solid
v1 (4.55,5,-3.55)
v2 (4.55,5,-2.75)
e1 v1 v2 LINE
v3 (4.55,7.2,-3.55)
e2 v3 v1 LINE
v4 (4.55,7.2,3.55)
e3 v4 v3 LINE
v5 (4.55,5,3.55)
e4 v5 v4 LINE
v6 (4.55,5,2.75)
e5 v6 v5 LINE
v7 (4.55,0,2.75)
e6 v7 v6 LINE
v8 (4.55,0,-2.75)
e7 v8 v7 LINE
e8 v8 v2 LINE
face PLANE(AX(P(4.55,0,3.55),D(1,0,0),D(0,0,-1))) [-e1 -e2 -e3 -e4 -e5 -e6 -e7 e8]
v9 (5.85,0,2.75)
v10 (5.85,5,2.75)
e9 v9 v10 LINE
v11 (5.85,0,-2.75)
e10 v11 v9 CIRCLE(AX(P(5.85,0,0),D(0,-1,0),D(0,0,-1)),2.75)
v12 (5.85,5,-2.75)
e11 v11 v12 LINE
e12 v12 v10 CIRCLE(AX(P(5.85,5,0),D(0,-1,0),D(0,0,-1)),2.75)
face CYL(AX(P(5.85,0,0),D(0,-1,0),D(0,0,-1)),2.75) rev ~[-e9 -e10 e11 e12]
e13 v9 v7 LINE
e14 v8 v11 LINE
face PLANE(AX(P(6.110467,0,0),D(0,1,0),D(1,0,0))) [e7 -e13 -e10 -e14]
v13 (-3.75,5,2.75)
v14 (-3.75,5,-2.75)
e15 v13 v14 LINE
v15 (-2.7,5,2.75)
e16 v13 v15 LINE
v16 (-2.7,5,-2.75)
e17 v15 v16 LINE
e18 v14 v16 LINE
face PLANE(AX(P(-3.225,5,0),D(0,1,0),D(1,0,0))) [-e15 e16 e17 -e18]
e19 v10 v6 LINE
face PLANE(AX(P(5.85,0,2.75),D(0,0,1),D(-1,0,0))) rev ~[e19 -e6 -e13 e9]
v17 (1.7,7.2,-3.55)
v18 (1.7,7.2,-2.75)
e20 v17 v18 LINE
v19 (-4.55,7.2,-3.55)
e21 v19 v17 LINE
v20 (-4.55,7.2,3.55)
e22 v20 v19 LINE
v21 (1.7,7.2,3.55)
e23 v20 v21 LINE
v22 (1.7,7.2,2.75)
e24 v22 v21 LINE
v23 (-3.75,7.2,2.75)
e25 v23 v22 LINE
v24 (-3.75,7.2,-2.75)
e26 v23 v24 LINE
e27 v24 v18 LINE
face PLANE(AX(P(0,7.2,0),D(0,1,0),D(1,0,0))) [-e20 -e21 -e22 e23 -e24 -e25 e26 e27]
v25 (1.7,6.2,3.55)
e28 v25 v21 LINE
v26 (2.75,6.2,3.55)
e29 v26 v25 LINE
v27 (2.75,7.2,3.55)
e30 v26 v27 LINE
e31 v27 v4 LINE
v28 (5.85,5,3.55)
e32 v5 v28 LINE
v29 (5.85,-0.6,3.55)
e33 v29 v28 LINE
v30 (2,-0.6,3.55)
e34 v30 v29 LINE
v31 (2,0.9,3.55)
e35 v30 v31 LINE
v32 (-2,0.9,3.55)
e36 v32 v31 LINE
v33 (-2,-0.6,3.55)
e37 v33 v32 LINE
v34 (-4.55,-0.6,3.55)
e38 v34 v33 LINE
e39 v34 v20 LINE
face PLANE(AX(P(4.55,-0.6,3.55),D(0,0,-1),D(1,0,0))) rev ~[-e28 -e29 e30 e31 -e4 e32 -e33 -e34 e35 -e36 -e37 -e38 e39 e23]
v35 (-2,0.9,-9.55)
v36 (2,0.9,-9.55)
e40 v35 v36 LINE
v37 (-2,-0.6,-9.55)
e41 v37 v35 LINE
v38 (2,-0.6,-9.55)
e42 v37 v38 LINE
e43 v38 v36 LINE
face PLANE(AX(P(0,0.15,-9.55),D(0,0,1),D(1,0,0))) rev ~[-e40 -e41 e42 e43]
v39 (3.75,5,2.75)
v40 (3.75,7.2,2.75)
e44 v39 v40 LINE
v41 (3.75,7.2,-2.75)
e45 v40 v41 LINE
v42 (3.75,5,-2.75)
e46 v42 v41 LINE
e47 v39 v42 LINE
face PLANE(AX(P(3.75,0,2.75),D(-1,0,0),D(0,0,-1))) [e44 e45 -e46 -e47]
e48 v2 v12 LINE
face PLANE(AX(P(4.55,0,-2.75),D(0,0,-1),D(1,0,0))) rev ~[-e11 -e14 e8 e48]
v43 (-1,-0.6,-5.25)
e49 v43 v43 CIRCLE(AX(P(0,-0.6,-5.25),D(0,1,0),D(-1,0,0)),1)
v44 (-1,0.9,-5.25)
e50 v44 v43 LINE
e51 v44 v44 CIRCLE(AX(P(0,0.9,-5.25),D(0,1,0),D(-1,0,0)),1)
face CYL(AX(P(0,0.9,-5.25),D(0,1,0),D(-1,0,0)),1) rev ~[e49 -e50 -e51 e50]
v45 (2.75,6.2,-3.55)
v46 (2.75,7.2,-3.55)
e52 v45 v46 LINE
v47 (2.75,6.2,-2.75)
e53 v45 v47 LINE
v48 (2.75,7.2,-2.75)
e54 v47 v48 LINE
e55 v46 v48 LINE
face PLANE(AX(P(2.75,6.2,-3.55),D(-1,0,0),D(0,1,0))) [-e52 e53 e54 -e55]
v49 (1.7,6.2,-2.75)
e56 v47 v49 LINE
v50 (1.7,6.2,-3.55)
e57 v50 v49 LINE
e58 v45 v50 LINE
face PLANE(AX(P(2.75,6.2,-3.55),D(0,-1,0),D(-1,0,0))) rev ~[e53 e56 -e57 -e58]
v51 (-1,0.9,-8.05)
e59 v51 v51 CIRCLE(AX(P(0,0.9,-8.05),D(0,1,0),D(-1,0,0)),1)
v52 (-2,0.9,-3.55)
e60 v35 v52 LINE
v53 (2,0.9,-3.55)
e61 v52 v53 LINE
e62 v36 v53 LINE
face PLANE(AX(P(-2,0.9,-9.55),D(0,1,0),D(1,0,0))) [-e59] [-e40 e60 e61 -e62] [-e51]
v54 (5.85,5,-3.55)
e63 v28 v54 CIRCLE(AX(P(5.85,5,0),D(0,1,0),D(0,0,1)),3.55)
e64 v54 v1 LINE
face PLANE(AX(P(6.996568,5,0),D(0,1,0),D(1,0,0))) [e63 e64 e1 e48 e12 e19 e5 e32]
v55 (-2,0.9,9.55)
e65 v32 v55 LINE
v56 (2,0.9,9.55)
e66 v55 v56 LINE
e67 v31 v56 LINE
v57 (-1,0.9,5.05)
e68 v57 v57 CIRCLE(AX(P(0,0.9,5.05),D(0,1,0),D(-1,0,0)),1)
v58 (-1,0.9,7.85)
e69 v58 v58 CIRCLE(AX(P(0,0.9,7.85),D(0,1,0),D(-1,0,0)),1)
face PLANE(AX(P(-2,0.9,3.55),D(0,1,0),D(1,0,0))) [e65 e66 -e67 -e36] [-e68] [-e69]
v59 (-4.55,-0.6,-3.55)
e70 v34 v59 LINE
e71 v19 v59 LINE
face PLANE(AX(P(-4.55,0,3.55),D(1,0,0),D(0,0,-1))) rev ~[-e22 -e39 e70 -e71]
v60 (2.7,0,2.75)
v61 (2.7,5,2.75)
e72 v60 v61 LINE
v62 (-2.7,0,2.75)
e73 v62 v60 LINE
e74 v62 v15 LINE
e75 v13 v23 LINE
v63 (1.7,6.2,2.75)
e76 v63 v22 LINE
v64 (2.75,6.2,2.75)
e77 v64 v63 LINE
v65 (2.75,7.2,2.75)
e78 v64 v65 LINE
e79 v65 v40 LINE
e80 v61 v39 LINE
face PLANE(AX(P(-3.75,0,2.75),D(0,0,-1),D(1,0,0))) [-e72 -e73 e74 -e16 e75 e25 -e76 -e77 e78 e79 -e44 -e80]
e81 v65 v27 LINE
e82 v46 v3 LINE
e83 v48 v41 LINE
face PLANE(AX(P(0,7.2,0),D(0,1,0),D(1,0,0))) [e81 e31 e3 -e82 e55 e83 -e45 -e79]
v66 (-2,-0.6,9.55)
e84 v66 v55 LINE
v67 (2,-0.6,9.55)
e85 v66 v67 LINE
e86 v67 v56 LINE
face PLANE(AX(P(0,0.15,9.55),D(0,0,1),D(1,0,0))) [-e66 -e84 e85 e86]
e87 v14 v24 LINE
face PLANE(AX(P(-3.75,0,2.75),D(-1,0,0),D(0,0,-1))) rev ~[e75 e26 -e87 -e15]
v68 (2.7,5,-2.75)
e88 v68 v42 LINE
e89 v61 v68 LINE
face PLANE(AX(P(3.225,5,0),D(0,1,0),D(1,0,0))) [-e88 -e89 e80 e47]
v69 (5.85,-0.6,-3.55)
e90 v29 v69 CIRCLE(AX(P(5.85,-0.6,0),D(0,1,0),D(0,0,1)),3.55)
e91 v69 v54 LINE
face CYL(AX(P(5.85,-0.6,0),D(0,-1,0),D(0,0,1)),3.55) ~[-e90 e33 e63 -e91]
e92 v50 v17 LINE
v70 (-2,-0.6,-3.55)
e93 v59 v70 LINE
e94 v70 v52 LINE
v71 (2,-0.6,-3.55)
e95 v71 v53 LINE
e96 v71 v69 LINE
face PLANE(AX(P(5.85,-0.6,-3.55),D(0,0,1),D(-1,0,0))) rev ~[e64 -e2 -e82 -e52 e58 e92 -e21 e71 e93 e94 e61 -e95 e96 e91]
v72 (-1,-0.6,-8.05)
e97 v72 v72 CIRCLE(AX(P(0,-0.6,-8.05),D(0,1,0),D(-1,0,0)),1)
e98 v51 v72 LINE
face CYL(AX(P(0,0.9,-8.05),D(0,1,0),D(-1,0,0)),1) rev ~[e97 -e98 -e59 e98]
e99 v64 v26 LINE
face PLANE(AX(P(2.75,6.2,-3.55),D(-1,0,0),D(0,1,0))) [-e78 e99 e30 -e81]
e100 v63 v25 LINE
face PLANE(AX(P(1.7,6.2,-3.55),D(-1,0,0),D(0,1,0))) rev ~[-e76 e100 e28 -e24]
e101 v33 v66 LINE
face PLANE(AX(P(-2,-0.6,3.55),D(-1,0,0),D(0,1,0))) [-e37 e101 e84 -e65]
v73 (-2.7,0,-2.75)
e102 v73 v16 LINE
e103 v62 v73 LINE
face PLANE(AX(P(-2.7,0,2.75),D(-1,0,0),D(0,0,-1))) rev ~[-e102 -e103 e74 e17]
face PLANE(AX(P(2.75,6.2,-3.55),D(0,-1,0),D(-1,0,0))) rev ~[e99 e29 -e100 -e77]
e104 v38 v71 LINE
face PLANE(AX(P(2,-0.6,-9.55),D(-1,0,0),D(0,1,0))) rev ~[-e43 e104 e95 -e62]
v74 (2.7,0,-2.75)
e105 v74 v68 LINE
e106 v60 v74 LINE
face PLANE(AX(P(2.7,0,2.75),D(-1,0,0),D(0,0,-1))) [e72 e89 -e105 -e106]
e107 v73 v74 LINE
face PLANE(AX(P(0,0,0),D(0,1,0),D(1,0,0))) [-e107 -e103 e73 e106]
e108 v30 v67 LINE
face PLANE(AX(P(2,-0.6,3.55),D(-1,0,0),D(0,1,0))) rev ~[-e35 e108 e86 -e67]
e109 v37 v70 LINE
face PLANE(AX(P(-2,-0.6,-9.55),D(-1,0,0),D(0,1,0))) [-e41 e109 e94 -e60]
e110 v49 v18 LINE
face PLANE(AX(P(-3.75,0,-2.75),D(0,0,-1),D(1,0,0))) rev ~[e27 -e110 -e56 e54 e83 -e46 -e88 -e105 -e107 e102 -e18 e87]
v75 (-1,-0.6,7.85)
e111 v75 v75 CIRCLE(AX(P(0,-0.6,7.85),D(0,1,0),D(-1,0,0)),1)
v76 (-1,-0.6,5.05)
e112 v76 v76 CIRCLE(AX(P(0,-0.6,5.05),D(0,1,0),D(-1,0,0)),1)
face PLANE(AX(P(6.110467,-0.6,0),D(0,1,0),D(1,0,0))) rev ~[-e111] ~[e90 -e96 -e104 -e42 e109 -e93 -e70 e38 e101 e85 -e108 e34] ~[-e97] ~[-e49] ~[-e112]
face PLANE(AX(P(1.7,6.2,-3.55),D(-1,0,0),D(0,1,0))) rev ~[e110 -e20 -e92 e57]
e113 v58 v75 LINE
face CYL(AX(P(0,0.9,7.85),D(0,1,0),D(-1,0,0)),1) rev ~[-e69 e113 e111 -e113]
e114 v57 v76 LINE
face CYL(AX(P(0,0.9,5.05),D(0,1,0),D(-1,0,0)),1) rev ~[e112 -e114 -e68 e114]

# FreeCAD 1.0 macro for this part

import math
import FreeCAD as App
import Part
import Sketcher

doc = App.newDocument("Part")
body = doc.addObject("PartDesign::Body", "Body")

# Sketch on XZ plane
sketch1 = body.newObject("Sketcher::SketchObject", "Sketch")
sketch1.AttachmentSupport = (doc.getObject("XZ_Plane"), [""])
sketch1.MapMode = "FlatFace"
sketch1.addGeometry(Part.LineSegment(App.Vector(-5, -4, 0), App.Vector(-5, 4, 0)), False)
sketch1.addGeometry(Part.LineSegment(App.Vector(-5, 4, 0), App.Vector(5, 4, 0)), False)
sketch1.addGeometry(Part.LineSegment(App.Vector(5, 4, 0), App.Vector(5, -4, 0)), False)
sketch1.addGeometry(Part.LineSegment(App.Vector(5, -4, 0), App.Vector(-5, -4, 0)), False)
sketch1.addGeometry(Part.LineSegment(App.Vector(4, 3, 0), App.Vector(-4, 3, 0)), False)
sketch1.addGeometry(Part.LineSegment(App.Vector(-4, 3, 0), App.Vector(-4, -3, 0)), False)
sketch1.addGeometry(Part.LineSegment(App.Vector(-4, -3, 0), App.Vector(4, -3, 0)), False)
sketch1.addGeometry(Part.LineSegment(App.Vector(4, -3, 0), App.Vector(4, 3, 0)), False)
sketch1.addConstraint(Sketcher.Constraint("Coincident", 0, 2, 1, 1))
sketch1.addConstraint(Sketcher.Constraint("Coincident", 1, 2, 2, 1))
sketch1.addConstraint(Sketcher.Constraint("Coincident", 2, 2, 3, 1))
sketch1.addConstraint(Sketcher.Constraint("Coincident", 3, 2, 0, 1))
sketch1.addConstraint(Sketcher.Constraint("Coincident", 4, 2, 5, 1))
sketch1.addConstraint(Sketcher.Constraint("Coincident", 5, 2, 6, 1))
sketch1.addConstraint(Sketcher.Constraint("Coincident", 6, 2, 7, 1))
sketch1.addConstraint(Sketcher.Constraint("Coincident", 7, 2, 4, 1))
sketch1.addConstraint(Sketcher.Constraint("Vertical", 0))
sketch1.addConstraint(Sketcher.Constraint("Horizontal", 1))
sketch1.addConstraint(Sketcher.Constraint("Vertical", 2))
sketch1.addConstraint(Sketcher.Constraint("Horizontal", 3))
sketch1.addConstraint(Sketcher.Constraint("Horizontal", 4))
sketch1.addConstraint(Sketcher.Constraint("Vertical", 5))
sketch1.addConstraint(Sketcher.Constraint("Horizontal", 6))
sketch1.addConstraint(Sketcher.Constraint("Vertical", 7))
sketch1.addConstraint(Sketcher.Constraint("Symmetric", 0, 2, 2, 2, -1, 1))
sketch1.addConstraint(Sketcher.Constraint("Symmetric", 4, 2, 6, 2, -1, 1))
sketch1.addConstraint(Sketcher.Constraint("DistanceX", 1, 1, 1, 2, 9.1))
sketch1.addConstraint(Sketcher.Constraint("DistanceX", 4, 2, 4, 1, 7.5))
sketch1.addConstraint(Sketcher.Constraint("DistanceY", 0, 1, 0, 2, 7.1))
sketch1.addConstraint(Sketcher.Constraint("DistanceY", 5, 2, 5, 1, 5.5))
pad1 = body.newObject("PartDesign::Pad", "Pad")
pad1.Profile = sketch1
pad1.Length = 7.2
pad1.Reversed = True

# Sketch on XZ plane
sketch2 = body.newObject("Sketcher::SketchObject", "Sketch001")
sketch2.AttachmentSupport = (doc.getObject("XZ_Plane"), [""])
sketch2.MapMode = "FlatFace"
sketch2.addGeometry(Part.LineSegment(App.Vector(-3.8, -2.8, 0), App.Vector(-3.8, 2.8, 0)), False)
sketch2.addGeometry(Part.LineSegment(App.Vector(-3.8, 2.8, 0), App.Vector(-2.7, 2.8, 0)), False)
sketch2.addGeometry(Part.LineSegment(App.Vector(-2.7, 2.8, 0), App.Vector(-2.7, -2.8, 0)), False)
sketch2.addGeometry(Part.LineSegment(App.Vector(-2.7, -2.8, 0), App.Vector(-3.8, -2.8, 0)), False)
sketch2.addGeometry(Part.LineSegment(App.Vector(2.7, -2.8, 0), App.Vector(2.7, 2.8, 0)), False)
sketch2.addGeometry(Part.LineSegment(App.Vector(2.7, 2.8, 0), App.Vector(3.8, 2.8, 0)), False)
sketch2.addGeometry(Part.LineSegment(App.Vector(3.8, 2.8, 0), App.Vector(3.8, -2.8, 0)), False)
sketch2.addGeometry(Part.LineSegment(App.Vector(3.8, -2.8, 0), App.Vector(2.7, -2.8, 0)), False)
sketch2.addConstraint(Sketcher.Constraint("Coincident", 0, 2, 1, 1))
sketch2.addConstraint(Sketcher.Constraint("Coincident", 1, 2, 2, 1))
sketch2.addConstraint(Sketcher.Constraint("Coincident", 2, 2, 3, 1))
sketch2.addConstraint(Sketcher.Constraint("Coincident", 3, 2, 0, 1))
sketch2.addConstraint(Sketcher.Constraint("Coincident", 4, 2, 5, 1))
sketch2.addConstraint(Sketcher.Constraint("Coincident", 5, 2, 6, 1))
sketch2.addConstraint(Sketcher.Constraint("Coincident", 6, 2, 7, 1))
sketch2.addConstraint(Sketcher.Constraint("Coincident", 7, 2, 4, 1))
sketch2.addConstraint(Sketcher.Constraint("Vertical", 0))
sketch2.addConstraint(Sketcher.Constraint("Horizontal", 1))
sketch2.addConstraint(Sketcher.Constraint("Vertical", 2))
sketch2.addConstraint(Sketcher.Constraint("Horizontal", 3))
sketch2.addConstraint(Sketcher.Constraint("Vertical", 4))
sketch2.addConstraint(Sketcher.Constraint("Horizontal", 5))
sketch2.addConstraint(Sketcher.Constraint("Vertical", 6))
sketch2.addConstraint(Sketcher.Constraint("Horizontal", 7))
sketch2.addConstraint(Sketcher.Constraint("Symmetric", 2, 2, 4, 2, -1, 1))
sketch2.addConstraint(Sketcher.Constraint("Symmetric", 0, 2, 6, 2, -1, 1))
sketch2.addConstraint(Sketcher.Constraint("Horizontal", 1, 2, 4, 2))
sketch2.addConstraint(Sketcher.Constraint("DistanceY", 0, 1, 0, 2, 5.5))
sketch2.addConstraint(Sketcher.Constraint("DistanceX", 1, 1, 1, 2, 1.05))
sketch2.addConstraint(Sketcher.Constraint("DistanceX", 1, 2, -1, 1, 2.7))
pad2 = body.newObject("PartDesign::Pad", "Pad001")
pad2.Profile = sketch2
pad2.Length = 5
pad2.Reversed = True

# Sketch on XZ plane
sketch3 = body.newObject("Sketcher::SketchObject", "Sketch002")
sketch3.AttachmentSupport = (doc.getObject("XZ_Plane"), [""])
sketch3.MapMode = "FlatFace"
sketch3.addGeometry(Part.LineSegment(App.Vector(-5, -4, 0), App.Vector(-5, 4, 0)), False)
sketch3.addGeometry(Part.LineSegment(App.Vector(-5, 4, 0), App.Vector(5, 4, 0)), False)
sketch3.addGeometry(Part.LineSegment(App.Vector(5, 4, 0), App.Vector(5, -4, 0)), False)
sketch3.addGeometry(Part.LineSegment(App.Vector(5, -4, 0), App.Vector(-5, -4, 0)), False)
sketch3.addConstraint(Sketcher.Constraint("Coincident", 0, 2, 1, 1))
sketch3.addConstraint(Sketcher.Constraint("Coincident", 1, 2, 2, 1))
sketch3.addConstraint(Sketcher.Constraint("Coincident", 2, 2, 3, 1))
sketch3.addConstraint(Sketcher.Constraint("Coincident", 3, 2, 0, 1))
sketch3.addConstraint(Sketcher.Constraint("Vertical", 0))
sketch3.addConstraint(Sketcher.Constraint("Horizontal", 1))
sketch3.addConstraint(Sketcher.Constraint("Vertical", 2))
sketch3.addConstraint(Sketcher.Constraint("Horizontal", 3))
sketch3.addConstraint(Sketcher.Constraint("Symmetric", 0, 2, 2, 2, -1, 1))
sketch3.addConstraint(Sketcher.Constraint("DistanceX", 1, 1, 1, 2, 9.1))
sketch3.addConstraint(Sketcher.Constraint("DistanceY", 0, 1, 0, 2, 7.1))
pad3 = body.newObject("PartDesign::Pad", "Pad002")
pad3.Profile = sketch3
pad3.Length = 0.6

# Sketch on XZ plane
sketch4 = body.newObject("Sketcher::SketchObject", "Sketch003")
sketch4.AttachmentSupport = (doc.getObject("XZ_Plane"), [""])
sketch4.MapMode = "FlatFace"
sketch4.addGeometry(Part.LineSegment(App.Vector(4.5, -3.5, 0), App.Vector(4.5, -2.8, 0)), False)
sketch4.addGeometry(Part.LineSegment(App.Vector(4.5, -2.8, 0), App.Vector(5.8, -2.8, 0)), False)
sketch4.addGeometry(Part.ArcOfCircle(Part.Circle(App.Vector(5.8, 0, 0), App.Vector(0, 0, 1), 2.8), math.radians(-90), math.radians(90)), False)
sketch4.addGeometry(Part.LineSegment(App.Vector(5.8, 2.8, 0), App.Vector(4.5, 2.8, 0)), False)
sketch4.addGeometry(Part.LineSegment(App.Vector(4.5, 2.8, 0), App.Vector(4.5, 3.5, 0)), False)
sketch4.addGeometry(Part.LineSegment(App.Vector(4.5, 3.5, 0), App.Vector(5.8, 3.5, 0)), False)
sketch4.addGeometry(Part.ArcOfCircle(Part.Circle(App.Vector(5.8, 0, 0), App.Vector(0, 0, 1), 3.5), math.radians(-90), math.radians(90)), False)
sketch4.addGeometry(Part.LineSegment(App.Vector(5.8, -3.5, 0), App.Vector(4.5, -3.5, 0)), False)
sketch4.addConstraint(Sketcher.Constraint("Coincident", 0, 2, 1, 1))
sketch4.addConstraint(Sketcher.Constraint("Tangent", 1, 2, 2, 1))
sketch4.addConstraint(Sketcher.Constraint("Tangent", 2, 2, 3, 1))
sketch4.addConstraint(Sketcher.Constraint("Coincident", 3, 2, 4, 1))
sketch4.addConstraint(Sketcher.Constraint("Coincident", 4, 2, 5, 1))
sketch4.addConstraint(Sketcher.Constraint("Tangent", 5, 2, 6, 2))
sketch4.addConstraint(Sketcher.Constraint("Tangent", 6, 1, 7, 1))
sketch4.addConstraint(Sketcher.Constraint("Coincident", 7, 2, 0, 1))
sketch4.addConstraint(Sketcher.Constraint("Vertical", 0))
sketch4.addConstraint(Sketcher.Constraint("Horizontal", 1))
sketch4.addConstraint(Sketcher.Constraint("Horizontal", 3))
sketch4.addConstraint(Sketcher.Constraint("Vertical", 4))
sketch4.addConstraint(Sketcher.Constraint("Horizontal", 5))
sketch4.addConstraint(Sketcher.Constraint("Horizontal", 7))
sketch4.addConstraint(Sketcher.Constraint("Coincident", 6, 3, 2, 3))
sketch4.addConstraint(Sketcher.Constraint("Symmetric", 0, 2, 3, 2, -1))
sketch4.addConstraint(Sketcher.Constraint("Radius", 2, 2.75))
sketch4.addConstraint(Sketcher.Constraint("Radius", 6, 3.55))
sketch4.addConstraint(Sketcher.Constraint("DistanceX", 1, 1, 1, 2, 1.3))
sketch4.addConstraint(Sketcher.Constraint("DistanceX", -1, 1, 2, 3, 5.85))
pad4 = body.newObject("PartDesign::Pad", "Pad003")
pad4.Profile = sketch4
pad4.Length = 5
pad4.Reversed = True

# Sketch on XZ plane
sketch5 = body.newObject("Sketcher::SketchObject", "Sketch004")
sketch5.AttachmentSupport = (doc.getObject("XZ_Plane"), [""])
sketch5.MapMode = "FlatFace"
sketch5.AttachmentOffset = App.Placement(App.Vector(0, 0, 0.6), App.Rotation())
sketch5.addGeometry(Part.LineSegment(App.Vector(4.5, 3.5, 0), App.Vector(5.8, 3.5, 0)), False)
sketch5.addGeometry(Part.ArcOfCircle(Part.Circle(App.Vector(5.8, 0, 0), App.Vector(0, 0, 1), 3.5), math.radians(-90), math.radians(90)), False)
sketch5.addGeometry(Part.LineSegment(App.Vector(5.8, -3.5, 0), App.Vector(4.5, -3.5, 0)), False)
sketch5.addGeometry(Part.LineSegment(App.Vector(4.5, -3.5, 0), App.Vector(4.5, 3.5, 0)), False)
sketch5.addConstraint(Sketcher.Constraint("Tangent", 0, 2, 1, 2))
sketch5.addConstraint(Sketcher.Constraint("Tangent", 1, 1, 2, 1))
sketch5.addConstraint(Sketcher.Constraint("Coincident", 2, 2, 3, 1))
sketch5.addConstraint(Sketcher.Constraint("Coincident", 3, 2, 0, 1))
sketch5.addConstraint(Sketcher.Constraint("Horizontal", 0))
sketch5.addConstraint(Sketcher.Constraint("Horizontal", 2))
sketch5.addConstraint(Sketcher.Constraint("Vertical", 3))
sketch5.addConstraint(Sketcher.Constraint("PointOnObject", 1, 3, -1))
sketch5.addConstraint(Sketcher.Constraint("Radius", 1, 3.55))
sketch5.addConstraint(Sketcher.Constraint("DistanceX", 0, 1, 0, 2, 1.3))
sketch5.addConstraint(Sketcher.Constraint("DistanceX", -1, 1, 1, 3, 5.85))
pad5 = body.newObject("PartDesign::Pad", "Pad004")
pad5.Profile = sketch5
pad5.Length = 0.6
pad5.Reversed = True

# Sketch on XY plane
sketch6 = body.newObject("Sketcher::SketchObject", "Sketch005")
sketch6.AttachmentSupport = (doc.getObject("XY_Plane"), [""])
sketch6.MapMode = "FlatFace"
sketch6.AttachmentOffset = App.Placement(App.Vector(0, 0, -3.55), App.Rotation())
sketch6.addGeometry(Part.LineSegment(App.Vector(2.8, 7.2, 0), App.Vector(2.8, 6.2, 0)), False)
sketch6.addGeometry(Part.LineSegment(App.Vector(2.8, 6.2, 0), App.Vector(1.7, 6.2, 0)), False)
sketch6.addGeometry(Part.LineSegment(App.Vector(1.7, 6.2, 0), App.Vector(1.7, 7.2, 0)), False)
sketch6.addGeometry(Part.LineSegment(App.Vector(1.7, 7.2, 0), App.Vector(2.8, 7.2, 0)), False)
sketch6.addConstraint(Sketcher.Constraint("Coincident", 0, 2, 1, 1))
sketch6.addConstraint(Sketcher.Constraint("Coincident", 1, 2, 2, 1))
sketch6.addConstraint(Sketcher.Constraint("Coincident", 2, 2, 3, 1))
sketch6.addConstraint(Sketcher.Constraint("Coincident", 3, 2, 0, 1))
sketch6.addConstraint(Sketcher.Constraint("Vertical", 0))
sketch6.addConstraint(Sketcher.Constraint("Horizontal", 1))
sketch6.addConstraint(Sketcher.Constraint("Vertical", 2))
sketch6.addConstraint(Sketcher.Constraint("Horizontal", 3))
sketch6.addConstraint(Sketcher.Constraint("DistanceY", 0, 2, 0, 1, 1.0))
sketch6.addConstraint(Sketcher.Constraint("DistanceX", 1, 2, 1, 1, 1.05))
sketch6.addConstraint(Sketcher.Constraint("DistanceY", -1, 1, 0, 2, 6.2))
sketch6.addConstraint(Sketcher.Constraint("DistanceX", -1, 1, 1, 2, 1.7))
pocket1 = body.newObject("PartDesign::Pocket", "Pocket")
pocket1.Profile = sketch6
pocket1.Length = 7.1
pocket1.Reversed = True

# Sketch on XY plane
sketch7 = body.newObject("Sketcher::SketchObject", "Sketch006")
sketch7.AttachmentSupport = (doc.getObject("XY_Plane"), [""])
sketch7.MapMode = "FlatFace"
sketch7.AttachmentOffset = App.Placement(App.Vector(0, 0, 3.55), App.Rotation())
sketch7.addGeometry(Part.LineSegment(App.Vector(-2, 0.9, 0), App.Vector(-2, -0.6, 0)), False)
sketch7.addGeometry(Part.LineSegment(App.Vector(-2, -0.6, 0), App.Vector(2, -0.6, 0)), False)
sketch7.addGeometry(Part.LineSegment(App.Vector(2, -0.6, 0), App.Vector(2, 0.9, 0)), False)
sketch7.addGeometry(Part.LineSegment(App.Vector(2, 0.9, 0), App.Vector(-2, 0.9, 0)), False)
sketch7.addConstraint(Sketcher.Constraint("Coincident", 0, 2, 1, 1))
sketch7.addConstraint(Sketcher.Constraint("Coincident", 1, 2, 2, 1))
sketch7.addConstraint(Sketcher.Constraint("Coincident", 2, 2, 3, 1))
sketch7.addConstraint(Sketcher.Constraint("Coincident", 3, 2, 0, 1))
sketch7.addConstraint(Sketcher.Constraint("Vertical", 0))
sketch7.addConstraint(Sketcher.Constraint("Horizontal", 1))
sketch7.addConstraint(Sketcher.Constraint("Vertical", 2))
sketch7.addConstraint(Sketcher.Constraint("Horizontal", 3))
sketch7.addConstraint(Sketcher.Constraint("DistanceX", 1, 1, 1, 2, 4.0))
sketch7.addConstraint(Sketcher.Constraint("DistanceY", 0, 2, 0, 1, 1.5))
sketch7.addConstraint(Sketcher.Constraint("DistanceX", 0, 2, -1, 1, 2.0))
sketch7.addConstraint(Sketcher.Constraint("DistanceY", 0, 2, -1, 1, 0.6))
pad6 = body.newObject("PartDesign::Pad", "Pad005")
pad6.Profile = sketch7
pad6.Length = 6

# Sketch on XZ plane
sketch8 = body.newObject("Sketcher::SketchObject", "Sketch007")
sketch8.AttachmentSupport = (doc.getObject("XZ_Plane"), [""])
sketch8.MapMode = "FlatFace"
sketch8.AttachmentOffset = App.Placement(App.Vector(0, 0, -0.9), App.Rotation())
sketch8.addGeometry(Part.Circle(App.Vector(0, 5, 0), App.Vector(0, 0, 1), 1), False)
sketch8.addGeometry(Part.Circle(App.Vector(0, 7.8, 0), App.Vector(0, 0, 1), 1), False)
sketch8.addConstraint(Sketcher.Constraint("Equal", 0, 1))
sketch8.addConstraint(Sketcher.Constraint("PointOnObject", 0, 3, -2))
sketch8.addConstraint(Sketcher.Constraint("PointOnObject", 1, 3, -2))
sketch8.addConstraint(Sketcher.Constraint("Diameter", 0, 2.0))
sketch8.addConstraint(Sketcher.Constraint("DistanceY", 0, 3, 1, 3, 2.8))
sketch8.addConstraint(Sketcher.Constraint("DistanceY", -1, 1, 0, 3, 5.05))
pocket2 = body.newObject("PartDesign::Pocket", "Pocket001")
pocket2.Profile = sketch8
pocket2.Length = 1.5
pocket2.Reversed = True
doc.recompute()

linearpattern = body.newObject("PartDesign::LinearPattern", "LinearPattern")
linearpattern.Originals = [pad6, pocket2]
linearpattern.Direction = (doc.getObject("Z_Axis"), [""])
linearpattern.Mode = "offset"
linearpattern.Offset = 13.1
linearpattern.Occurrences = 2
linearpattern.Reversed = True
body.Tip = linearpattern

doc.recompute()
